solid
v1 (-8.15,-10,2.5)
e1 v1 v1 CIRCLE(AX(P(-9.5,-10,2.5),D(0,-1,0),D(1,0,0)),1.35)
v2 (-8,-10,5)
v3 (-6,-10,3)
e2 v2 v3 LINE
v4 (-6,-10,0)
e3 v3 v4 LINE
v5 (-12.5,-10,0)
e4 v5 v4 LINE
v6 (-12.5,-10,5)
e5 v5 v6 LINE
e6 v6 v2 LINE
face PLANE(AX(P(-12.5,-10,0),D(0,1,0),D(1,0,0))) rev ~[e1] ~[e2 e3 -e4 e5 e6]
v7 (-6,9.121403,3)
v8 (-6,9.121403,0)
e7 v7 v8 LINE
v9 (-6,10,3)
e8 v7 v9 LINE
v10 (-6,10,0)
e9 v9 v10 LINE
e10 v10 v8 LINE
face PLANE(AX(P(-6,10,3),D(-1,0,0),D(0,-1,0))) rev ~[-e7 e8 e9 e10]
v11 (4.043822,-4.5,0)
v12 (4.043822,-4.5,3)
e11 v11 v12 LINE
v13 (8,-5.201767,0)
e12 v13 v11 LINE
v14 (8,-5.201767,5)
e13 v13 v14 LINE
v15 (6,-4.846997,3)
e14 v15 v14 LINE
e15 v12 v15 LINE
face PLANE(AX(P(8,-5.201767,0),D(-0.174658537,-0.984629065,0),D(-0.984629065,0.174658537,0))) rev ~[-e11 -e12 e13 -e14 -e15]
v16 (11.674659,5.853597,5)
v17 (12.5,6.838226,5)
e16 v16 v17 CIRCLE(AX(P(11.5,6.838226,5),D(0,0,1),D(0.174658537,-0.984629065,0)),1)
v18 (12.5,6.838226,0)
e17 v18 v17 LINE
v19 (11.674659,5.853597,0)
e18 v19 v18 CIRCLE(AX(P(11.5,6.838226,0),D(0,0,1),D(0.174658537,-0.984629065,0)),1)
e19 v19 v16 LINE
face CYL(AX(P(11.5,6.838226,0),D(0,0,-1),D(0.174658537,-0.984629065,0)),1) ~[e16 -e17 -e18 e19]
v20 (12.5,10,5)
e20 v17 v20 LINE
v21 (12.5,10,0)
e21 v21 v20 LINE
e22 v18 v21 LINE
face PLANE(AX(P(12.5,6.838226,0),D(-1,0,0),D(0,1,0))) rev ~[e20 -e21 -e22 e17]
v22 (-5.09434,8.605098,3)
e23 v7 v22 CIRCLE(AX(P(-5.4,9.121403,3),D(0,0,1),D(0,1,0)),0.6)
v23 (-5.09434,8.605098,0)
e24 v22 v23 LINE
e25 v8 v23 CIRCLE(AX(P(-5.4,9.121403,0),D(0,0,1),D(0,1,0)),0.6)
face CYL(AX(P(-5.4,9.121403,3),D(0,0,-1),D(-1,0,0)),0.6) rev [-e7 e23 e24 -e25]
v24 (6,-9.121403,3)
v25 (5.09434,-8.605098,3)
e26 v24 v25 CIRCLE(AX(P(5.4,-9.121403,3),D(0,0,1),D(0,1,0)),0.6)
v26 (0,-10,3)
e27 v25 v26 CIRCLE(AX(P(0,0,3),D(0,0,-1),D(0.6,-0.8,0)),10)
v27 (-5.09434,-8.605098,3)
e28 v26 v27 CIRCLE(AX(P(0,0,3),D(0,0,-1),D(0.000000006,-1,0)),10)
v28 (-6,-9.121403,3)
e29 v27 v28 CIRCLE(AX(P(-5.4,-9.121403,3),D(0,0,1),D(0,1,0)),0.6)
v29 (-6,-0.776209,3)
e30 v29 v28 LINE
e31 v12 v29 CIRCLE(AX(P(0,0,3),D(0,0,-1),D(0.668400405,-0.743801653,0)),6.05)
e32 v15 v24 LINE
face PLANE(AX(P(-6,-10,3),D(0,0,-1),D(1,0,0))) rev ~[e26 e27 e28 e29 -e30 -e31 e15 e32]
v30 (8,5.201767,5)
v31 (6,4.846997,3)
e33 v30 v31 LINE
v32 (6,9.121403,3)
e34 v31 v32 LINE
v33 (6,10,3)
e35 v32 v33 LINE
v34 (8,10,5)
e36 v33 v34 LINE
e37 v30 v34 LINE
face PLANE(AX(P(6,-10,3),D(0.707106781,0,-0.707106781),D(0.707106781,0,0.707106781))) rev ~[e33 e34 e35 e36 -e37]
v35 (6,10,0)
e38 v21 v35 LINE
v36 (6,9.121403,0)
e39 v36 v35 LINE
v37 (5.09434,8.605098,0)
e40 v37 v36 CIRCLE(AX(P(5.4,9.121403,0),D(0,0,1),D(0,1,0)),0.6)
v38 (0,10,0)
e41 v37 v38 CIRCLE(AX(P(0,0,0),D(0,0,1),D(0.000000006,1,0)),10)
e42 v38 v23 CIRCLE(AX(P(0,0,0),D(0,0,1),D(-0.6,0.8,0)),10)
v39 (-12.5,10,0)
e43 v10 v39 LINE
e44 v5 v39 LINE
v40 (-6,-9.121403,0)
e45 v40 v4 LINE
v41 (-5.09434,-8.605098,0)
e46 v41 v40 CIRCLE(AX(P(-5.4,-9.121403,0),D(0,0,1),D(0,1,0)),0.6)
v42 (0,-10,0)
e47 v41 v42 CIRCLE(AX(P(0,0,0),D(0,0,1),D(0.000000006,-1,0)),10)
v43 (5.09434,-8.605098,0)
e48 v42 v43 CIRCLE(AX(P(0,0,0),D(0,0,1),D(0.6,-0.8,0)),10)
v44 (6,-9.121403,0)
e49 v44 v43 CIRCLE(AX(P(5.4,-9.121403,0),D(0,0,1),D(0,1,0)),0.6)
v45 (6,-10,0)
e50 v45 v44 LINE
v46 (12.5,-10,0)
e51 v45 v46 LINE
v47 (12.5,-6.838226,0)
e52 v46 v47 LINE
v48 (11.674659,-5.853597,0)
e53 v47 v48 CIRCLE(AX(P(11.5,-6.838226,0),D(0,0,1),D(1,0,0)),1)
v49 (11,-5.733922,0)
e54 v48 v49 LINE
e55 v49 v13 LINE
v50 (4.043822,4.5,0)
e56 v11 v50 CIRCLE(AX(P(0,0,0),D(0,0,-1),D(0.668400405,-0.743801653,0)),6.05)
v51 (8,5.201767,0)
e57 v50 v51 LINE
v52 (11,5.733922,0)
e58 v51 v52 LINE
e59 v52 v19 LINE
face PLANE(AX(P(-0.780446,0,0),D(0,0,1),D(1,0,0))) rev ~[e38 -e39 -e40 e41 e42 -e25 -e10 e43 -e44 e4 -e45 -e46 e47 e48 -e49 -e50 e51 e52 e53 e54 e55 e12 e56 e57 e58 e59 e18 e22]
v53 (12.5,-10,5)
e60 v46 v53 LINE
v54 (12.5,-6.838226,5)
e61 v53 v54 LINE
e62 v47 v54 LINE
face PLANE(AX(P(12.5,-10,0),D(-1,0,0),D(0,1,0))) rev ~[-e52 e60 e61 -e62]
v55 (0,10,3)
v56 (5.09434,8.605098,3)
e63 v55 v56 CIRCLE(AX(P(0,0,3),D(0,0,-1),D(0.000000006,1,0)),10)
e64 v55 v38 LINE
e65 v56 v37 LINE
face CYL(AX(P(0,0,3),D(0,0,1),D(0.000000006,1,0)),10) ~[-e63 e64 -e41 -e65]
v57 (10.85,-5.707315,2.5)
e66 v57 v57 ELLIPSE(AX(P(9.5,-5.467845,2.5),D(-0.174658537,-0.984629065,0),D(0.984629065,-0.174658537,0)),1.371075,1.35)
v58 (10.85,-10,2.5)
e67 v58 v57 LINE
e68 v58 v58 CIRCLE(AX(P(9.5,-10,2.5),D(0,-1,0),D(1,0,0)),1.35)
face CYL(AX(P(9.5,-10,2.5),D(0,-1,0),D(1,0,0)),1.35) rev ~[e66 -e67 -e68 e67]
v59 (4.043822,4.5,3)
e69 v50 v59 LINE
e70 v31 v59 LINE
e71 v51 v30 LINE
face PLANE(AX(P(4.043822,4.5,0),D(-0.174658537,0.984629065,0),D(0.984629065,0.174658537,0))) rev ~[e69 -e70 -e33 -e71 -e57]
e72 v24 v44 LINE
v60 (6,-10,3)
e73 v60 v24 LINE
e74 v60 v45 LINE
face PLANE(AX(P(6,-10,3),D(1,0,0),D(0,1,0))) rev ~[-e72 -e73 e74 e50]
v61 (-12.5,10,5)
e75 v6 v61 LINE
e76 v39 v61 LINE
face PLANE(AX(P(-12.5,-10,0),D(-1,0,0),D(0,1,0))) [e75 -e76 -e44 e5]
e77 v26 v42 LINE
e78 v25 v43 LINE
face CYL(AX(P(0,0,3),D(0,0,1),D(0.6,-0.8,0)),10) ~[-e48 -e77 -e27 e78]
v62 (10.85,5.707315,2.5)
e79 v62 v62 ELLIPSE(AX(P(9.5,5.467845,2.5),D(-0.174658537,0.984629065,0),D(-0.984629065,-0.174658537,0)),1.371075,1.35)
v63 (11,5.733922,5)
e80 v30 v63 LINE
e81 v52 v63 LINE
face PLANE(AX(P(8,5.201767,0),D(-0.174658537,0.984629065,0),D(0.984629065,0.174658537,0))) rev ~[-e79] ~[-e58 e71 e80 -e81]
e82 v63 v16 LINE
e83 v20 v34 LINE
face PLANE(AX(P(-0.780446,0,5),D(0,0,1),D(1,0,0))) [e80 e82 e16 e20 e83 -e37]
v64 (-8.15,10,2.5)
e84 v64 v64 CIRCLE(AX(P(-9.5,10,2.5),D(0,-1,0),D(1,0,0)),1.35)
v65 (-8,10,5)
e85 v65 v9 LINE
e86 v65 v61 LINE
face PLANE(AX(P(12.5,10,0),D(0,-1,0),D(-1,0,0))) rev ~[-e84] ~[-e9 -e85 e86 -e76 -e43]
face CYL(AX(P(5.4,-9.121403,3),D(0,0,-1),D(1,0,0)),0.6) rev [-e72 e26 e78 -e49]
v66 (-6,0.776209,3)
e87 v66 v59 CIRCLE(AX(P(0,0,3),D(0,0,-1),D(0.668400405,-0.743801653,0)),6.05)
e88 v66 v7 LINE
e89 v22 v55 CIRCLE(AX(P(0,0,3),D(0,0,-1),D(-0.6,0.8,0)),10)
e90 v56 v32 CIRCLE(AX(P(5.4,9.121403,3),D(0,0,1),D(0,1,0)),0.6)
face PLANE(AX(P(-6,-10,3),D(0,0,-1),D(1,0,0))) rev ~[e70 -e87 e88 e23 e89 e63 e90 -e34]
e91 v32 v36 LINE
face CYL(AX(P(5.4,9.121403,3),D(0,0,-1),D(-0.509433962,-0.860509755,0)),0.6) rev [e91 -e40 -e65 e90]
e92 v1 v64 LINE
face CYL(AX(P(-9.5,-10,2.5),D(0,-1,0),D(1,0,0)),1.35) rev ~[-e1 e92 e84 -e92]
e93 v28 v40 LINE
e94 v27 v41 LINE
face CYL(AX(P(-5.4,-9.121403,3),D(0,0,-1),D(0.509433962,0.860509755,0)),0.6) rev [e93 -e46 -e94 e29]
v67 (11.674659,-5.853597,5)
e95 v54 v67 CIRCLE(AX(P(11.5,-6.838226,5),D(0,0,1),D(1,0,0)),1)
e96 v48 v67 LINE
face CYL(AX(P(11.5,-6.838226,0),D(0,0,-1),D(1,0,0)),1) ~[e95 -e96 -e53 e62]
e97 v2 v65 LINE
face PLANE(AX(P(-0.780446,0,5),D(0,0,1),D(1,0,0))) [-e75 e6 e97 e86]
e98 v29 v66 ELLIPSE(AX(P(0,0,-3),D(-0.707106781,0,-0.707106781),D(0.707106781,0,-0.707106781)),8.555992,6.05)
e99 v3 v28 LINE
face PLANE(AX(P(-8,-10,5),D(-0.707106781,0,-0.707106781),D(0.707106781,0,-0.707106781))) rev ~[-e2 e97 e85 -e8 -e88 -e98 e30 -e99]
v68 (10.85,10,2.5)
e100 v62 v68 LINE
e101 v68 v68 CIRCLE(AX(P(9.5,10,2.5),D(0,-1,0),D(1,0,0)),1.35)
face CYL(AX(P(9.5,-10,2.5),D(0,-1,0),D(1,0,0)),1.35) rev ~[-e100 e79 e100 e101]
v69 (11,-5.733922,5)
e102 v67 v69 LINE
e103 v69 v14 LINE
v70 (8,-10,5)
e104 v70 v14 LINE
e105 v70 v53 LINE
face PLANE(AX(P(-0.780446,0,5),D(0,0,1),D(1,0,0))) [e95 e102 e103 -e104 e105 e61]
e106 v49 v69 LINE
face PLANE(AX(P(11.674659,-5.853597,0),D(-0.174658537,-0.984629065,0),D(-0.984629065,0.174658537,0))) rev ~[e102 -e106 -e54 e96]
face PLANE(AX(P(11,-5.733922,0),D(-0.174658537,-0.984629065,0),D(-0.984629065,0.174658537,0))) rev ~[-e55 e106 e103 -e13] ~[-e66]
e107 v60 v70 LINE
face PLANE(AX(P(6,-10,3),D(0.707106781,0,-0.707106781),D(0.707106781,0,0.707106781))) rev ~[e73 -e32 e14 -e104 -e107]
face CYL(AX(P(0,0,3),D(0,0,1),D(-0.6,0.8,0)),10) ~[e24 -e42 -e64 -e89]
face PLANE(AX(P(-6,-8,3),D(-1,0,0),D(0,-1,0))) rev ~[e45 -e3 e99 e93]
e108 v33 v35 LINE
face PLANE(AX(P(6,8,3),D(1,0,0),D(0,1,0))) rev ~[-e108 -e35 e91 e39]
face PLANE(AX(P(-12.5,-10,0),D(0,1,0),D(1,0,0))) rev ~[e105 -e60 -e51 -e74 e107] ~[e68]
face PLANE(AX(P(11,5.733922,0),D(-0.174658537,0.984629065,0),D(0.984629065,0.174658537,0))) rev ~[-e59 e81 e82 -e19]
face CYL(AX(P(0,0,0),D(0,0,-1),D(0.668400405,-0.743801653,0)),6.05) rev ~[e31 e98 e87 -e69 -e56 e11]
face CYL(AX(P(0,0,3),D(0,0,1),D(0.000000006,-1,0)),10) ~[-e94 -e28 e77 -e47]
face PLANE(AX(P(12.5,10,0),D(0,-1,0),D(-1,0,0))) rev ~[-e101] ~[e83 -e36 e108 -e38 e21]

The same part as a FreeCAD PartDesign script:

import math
import FreeCAD as App
import Part
import Sketcher
Q = App.Units.Quantity


def edges_at(feature, points):
    """Names of the edges that pass closest to the given points."""
    edges = feature.Shape.Edges
    near = lambda p: min(range(len(edges)), key=lambda i: edges[i].distToShape(Part.Vertex(*p))[0])
    return sorted({f"Edge{near(p) + 1}" for p in points})

doc = App.newDocument("Part")
body = doc.addObject("PartDesign::Body", "Body")

sketch1 = body.newObject("Sketcher::SketchObject", "Sketch")
sketch1.AttachmentSupport = (doc.getObject("XY_Plane"), [""])
sketch1.MapMode = "FlatFace"
sketch1.addGeometry([
    Part.ArcOfCircle(Part.Circle(App.Vector(0, 0, 0), App.Vector(0, 0, 1), 6), math.radians(48), math.radians(312)),
    Part.LineSegment(App.Vector(4, 4.5, 0), App.Vector(8, 5.2, 0)),
    Part.LineSegment(App.Vector(8, 5.2, 0), App.Vector(11, 5.7, 0)),
    Part.LineSegment(App.Vector(11, 5.7, 0), App.Vector(11.7, 5.9, 0)),
    Part.ArcOfCircle(Part.Circle(App.Vector(11.5, 6.8, 0), App.Vector(0, 0, 1), 1), math.radians(-80), math.radians(0)),
    Part.LineSegment(App.Vector(12.5, 6.8, 0), App.Vector(12.5, 10, 0)),
    Part.LineSegment(App.Vector(12.5, 10, 0), App.Vector(-12.5, 10, 0)),
    Part.LineSegment(App.Vector(-12.5, 10, 0), App.Vector(-12.5, -10, 0)),
    Part.LineSegment(App.Vector(-12.5, -10, 0), App.Vector(12.5, -10, 0)),
    Part.LineSegment(App.Vector(12.5, -10, 0), App.Vector(12.5, -6.8, 0)),
    Part.ArcOfCircle(Part.Circle(App.Vector(11.5, -6.8, 0), App.Vector(0, 0, 1), 1), math.radians(0), math.radians(80)),
    Part.LineSegment(App.Vector(11.7, -5.9, 0), App.Vector(11, -5.7, 0)),
    Part.LineSegment(App.Vector(11, -5.7, 0), App.Vector(8, -5.2, 0)),
    Part.LineSegment(App.Vector(8, -5.2, 0), App.Vector(4, -4.5, 0)),
], False)
sketch1.addConstraint([
    Sketcher.Constraint("Coincident", 0, 1, 1, 1),
    Sketcher.Constraint("Coincident", 1, 2, 2, 1),
    Sketcher.Constraint("Coincident", 2, 2, 3, 1),
    Sketcher.Constraint("Tangent", 3, 2, 4, 1),
    Sketcher.Constraint("Tangent", 4, 2, 5, 1),
    Sketcher.Constraint("Coincident", 5, 2, 6, 1),
    Sketcher.Constraint("Coincident", 6, 2, 7, 1),
    Sketcher.Constraint("Coincident", 7, 2, 8, 1),
    Sketcher.Constraint("Coincident", 8, 2, 9, 1),
    Sketcher.Constraint("Tangent", 9, 2, 10, 1),
    Sketcher.Constraint("Tangent", 10, 2, 11, 1),
    Sketcher.Constraint("Coincident", 11, 2, 12, 1),
    Sketcher.Constraint("Coincident", 12, 2, 13, 1),
    Sketcher.Constraint("Coincident", 13, 2, 0, 2),
    Sketcher.Constraint("Vertical", 5),
    Sketcher.Constraint("Horizontal", 6),
    Sketcher.Constraint("Vertical", 7),
    Sketcher.Constraint("Horizontal", 8),
    Sketcher.Constraint("Vertical", 9),
    Sketcher.Constraint("Coincident", 0, 3, -1, 1),
    Sketcher.Constraint("Equal", 4, 10),
    Sketcher.Constraint("Symmetric", 5, 2, 7, 2, -1, 1),
    Sketcher.Constraint("Symmetric", 4, 3, 10, 3, -1),
    Sketcher.Constraint("Symmetric", 2, 2, 11, 2, -1),
    Sketcher.Constraint("Symmetric", 1, 2, 12, 2, -1),
    Sketcher.Constraint("Parallel", 1, 2),
    Sketcher.Constraint("Parallel", 2, 3),
    Sketcher.Constraint("Parallel", 12, 13),
    Sketcher.Constraint("Radius", 4, Q("1 mm")),
    Sketcher.Constraint("DistanceX", 6, 2, 6, 1, Q("25 mm")),
    Sketcher.Constraint("DistanceY", 7, 2, 7, 1, Q("20 mm")),
    Sketcher.Constraint("Radius", 0, Q("6.05 mm")),
    Sketcher.Constraint("DistanceX", -1, 1, 1, 2, Q("8 mm")),
    Sketcher.Constraint("DistanceX", -1, 1, 2, 2, Q("11 mm")),
    Sketcher.Constraint("DistanceY", -1, 1, 0, 1, Q("4.5 mm")),
    Sketcher.Constraint("Distance", 3, Q("0.685191 mm")),
])
pad1 = body.newObject("PartDesign::Pad", "Pad")
pad1.Profile = sketch1
pad1.Length = 5

sketch2 = body.newObject("Sketcher::SketchObject", "Sketch001")
sketch2.AttachmentSupport = (doc.getObject("XZ_Plane"), [""])
sketch2.MapMode = "FlatFace"
sketch2.AttachmentOffset = App.Placement(App.Vector(0, 0, 10), App.Rotation())
sketch2.addGeometry([
    Part.Circle(App.Vector(-9.5, 2.5, 0), App.Vector(0, 0, 1), 1.4),
    Part.Circle(App.Vector(9.5, 2.5, 0), App.Vector(0, 0, 1), 1.4),
    Part.LineSegment(App.Vector(8, 5, 0), App.Vector(-8, 5, 0)),
    Part.LineSegment(App.Vector(-8, 5, 0), App.Vector(-6, 3, 0)),
    Part.LineSegment(App.Vector(-6, 3, 0), App.Vector(6, 3, 0)),
    Part.LineSegment(App.Vector(6, 3, 0), App.Vector(8, 5, 0)),
], False)
sketch2.addConstraint([
    Sketcher.Constraint("Coincident", 2, 2, 3, 1),
    Sketcher.Constraint("Coincident", 3, 2, 4, 1),
    Sketcher.Constraint("Coincident", 4, 2, 5, 1),
    Sketcher.Constraint("Coincident", 5, 2, 2, 1),
    Sketcher.Constraint("Horizontal", 2),
    Sketcher.Constraint("Horizontal", 4),
    Sketcher.Constraint("Equal", 0, 1),
    Sketcher.Constraint("Symmetric", 0, 3, 1, 3, -2),
    Sketcher.Constraint("Perpendicular", 3, 5),
    Sketcher.Constraint("Equal", 3, 5),
    Sketcher.Constraint("Diameter", 0, Q("2.7 mm")),
    Sketcher.Constraint("DistanceX", 2, 2, 2, 1, Q("16 mm")),
    Sketcher.Constraint("DistanceX", 4, 1, 4, 2, Q("12 mm")),
    Sketcher.Constraint("DistanceX", 2, 2, -1, 1, Q("8 mm")),
    Sketcher.Constraint("DistanceY", -1, 1, 2, 2, Q("5 mm")),
    Sketcher.Constraint("DistanceX", 0, 3, 1, 3, Q("19 mm")),
    Sketcher.Constraint("DistanceY", -1, 1, 0, 3, Q("2.5 mm")),
])
pocket1 = body.newObject("PartDesign::Pocket", "Pocket")
pocket1.Profile = sketch2
pocket1.Length = 25

sketch3 = body.newObject("Sketcher::SketchObject", "Sketch002")
sketch3.AttachmentSupport = (doc.getObject("XY_Plane"), [""])
sketch3.MapMode = "FlatFace"
sketch3.AttachmentOffset = App.Placement(App.Vector(0, 0, 3), App.Rotation())
sketch3.addGeometry([
    Part.ArcOfCircle(Part.Circle(App.Vector(0, 0, 0), App.Vector(0, 0, 1), 10), math.radians(53), math.radians(90)),
    Part.LineSegment(App.Vector(6, 8, 0), App.Vector(6, 10, 0)),
    Part.LineSegment(App.Vector(6, 10, 0), App.Vector(0, 10, 0)),
    Part.ArcOfCircle(Part.Circle(App.Vector(0, 0, 0), App.Vector(0, 0, 1), 10), math.radians(90), math.radians(127)),
    Part.LineSegment(App.Vector(0, 10, 0), App.Vector(-6, 10, 0)),
    Part.LineSegment(App.Vector(-6, 10, 0), App.Vector(-6, 8, 0)),
    Part.LineSegment(App.Vector(-6, -10, 0), App.Vector(0, -10, 0)),
    Part.ArcOfCircle(Part.Circle(App.Vector(0, 0, 0), App.Vector(0, 0, 1), 10), math.radians(-127), math.radians(-90)),
    Part.LineSegment(App.Vector(-6, -8, 0), App.Vector(-6, -10, 0)),
    Part.LineSegment(App.Vector(0, -10, 0), App.Vector(6, -10, 0)),
    Part.LineSegment(App.Vector(6, -10, 0), App.Vector(6, -8, 0)),
    Part.ArcOfCircle(Part.Circle(App.Vector(0, 0, 0), App.Vector(0, 0, 1), 10), math.radians(-90), math.radians(-53)),
], False)
sketch3.addConstraint([
    Sketcher.Constraint("Coincident", 0, 1, 1, 1),
    Sketcher.Constraint("Coincident", 1, 2, 2, 1),
    Sketcher.Constraint("Tangent", 2, 2, 0, 2),
    Sketcher.Constraint("Tangent", 3, 1, 4, 1),
    Sketcher.Constraint("Coincident", 4, 2, 5, 1),
    Sketcher.Constraint("Coincident", 5, 2, 3, 2),
    Sketcher.Constraint("Tangent", 6, 2, 7, 2),
    Sketcher.Constraint("Coincident", 7, 1, 8, 1),
    Sketcher.Constraint("Coincident", 8, 2, 6, 1),
    Sketcher.Constraint("Coincident", 9, 2, 10, 1),
    Sketcher.Constraint("Coincident", 10, 2, 11, 2),
    Sketcher.Constraint("Tangent", 11, 1, 9, 1),
    Sketcher.Constraint("Vertical", 1),
    Sketcher.Constraint("Horizontal", 2),
    Sketcher.Constraint("Horizontal", 4),
    Sketcher.Constraint("Vertical", 5),
    Sketcher.Constraint("Horizontal", 6),
    Sketcher.Constraint("Vertical", 8),
    Sketcher.Constraint("Horizontal", 9),
    Sketcher.Constraint("Vertical", 10),
    Sketcher.Constraint("Coincident", 0, 3, -1, 1),
    Sketcher.Constraint("Coincident", 3, 3, -1, 1),
    Sketcher.Constraint("Coincident", 7, 3, -1, 1),
    Sketcher.Constraint("Coincident", 11, 3, -1, 1),
    Sketcher.Constraint("Equal", 0, 3),
    Sketcher.Constraint("Equal", 3, 7),
    Sketcher.Constraint("Equal", 7, 11),
    Sketcher.Constraint("Horizontal", 0, 1, 5, 2),
    Sketcher.Constraint("Horizontal", 7, 1, 10, 2),
    Sketcher.Constraint("Vertical", 5, 2, 7, 1),
    Sketcher.Constraint("Radius", 0, Q("10 mm")),
    Sketcher.Constraint("DistanceX", 2, 2, 2, 1, Q("6 mm")),
])
pocket2 = body.newObject("PartDesign::Pocket", "Pocket001")
pocket2.Profile = sketch3
pocket2.Length = 25
doc.recompute()

fillet = body.newObject("PartDesign::Fillet", "Fillet")
fillet.Base = (pocket2, edges_at(pocket2, [
    (-6, -8, 1.5),
    (-6, 8, 1.5),
    (6, 8, 1.5),
    (6, -8, 1.5),
]))
fillet.Radius = 0.6

doc.recompute()
